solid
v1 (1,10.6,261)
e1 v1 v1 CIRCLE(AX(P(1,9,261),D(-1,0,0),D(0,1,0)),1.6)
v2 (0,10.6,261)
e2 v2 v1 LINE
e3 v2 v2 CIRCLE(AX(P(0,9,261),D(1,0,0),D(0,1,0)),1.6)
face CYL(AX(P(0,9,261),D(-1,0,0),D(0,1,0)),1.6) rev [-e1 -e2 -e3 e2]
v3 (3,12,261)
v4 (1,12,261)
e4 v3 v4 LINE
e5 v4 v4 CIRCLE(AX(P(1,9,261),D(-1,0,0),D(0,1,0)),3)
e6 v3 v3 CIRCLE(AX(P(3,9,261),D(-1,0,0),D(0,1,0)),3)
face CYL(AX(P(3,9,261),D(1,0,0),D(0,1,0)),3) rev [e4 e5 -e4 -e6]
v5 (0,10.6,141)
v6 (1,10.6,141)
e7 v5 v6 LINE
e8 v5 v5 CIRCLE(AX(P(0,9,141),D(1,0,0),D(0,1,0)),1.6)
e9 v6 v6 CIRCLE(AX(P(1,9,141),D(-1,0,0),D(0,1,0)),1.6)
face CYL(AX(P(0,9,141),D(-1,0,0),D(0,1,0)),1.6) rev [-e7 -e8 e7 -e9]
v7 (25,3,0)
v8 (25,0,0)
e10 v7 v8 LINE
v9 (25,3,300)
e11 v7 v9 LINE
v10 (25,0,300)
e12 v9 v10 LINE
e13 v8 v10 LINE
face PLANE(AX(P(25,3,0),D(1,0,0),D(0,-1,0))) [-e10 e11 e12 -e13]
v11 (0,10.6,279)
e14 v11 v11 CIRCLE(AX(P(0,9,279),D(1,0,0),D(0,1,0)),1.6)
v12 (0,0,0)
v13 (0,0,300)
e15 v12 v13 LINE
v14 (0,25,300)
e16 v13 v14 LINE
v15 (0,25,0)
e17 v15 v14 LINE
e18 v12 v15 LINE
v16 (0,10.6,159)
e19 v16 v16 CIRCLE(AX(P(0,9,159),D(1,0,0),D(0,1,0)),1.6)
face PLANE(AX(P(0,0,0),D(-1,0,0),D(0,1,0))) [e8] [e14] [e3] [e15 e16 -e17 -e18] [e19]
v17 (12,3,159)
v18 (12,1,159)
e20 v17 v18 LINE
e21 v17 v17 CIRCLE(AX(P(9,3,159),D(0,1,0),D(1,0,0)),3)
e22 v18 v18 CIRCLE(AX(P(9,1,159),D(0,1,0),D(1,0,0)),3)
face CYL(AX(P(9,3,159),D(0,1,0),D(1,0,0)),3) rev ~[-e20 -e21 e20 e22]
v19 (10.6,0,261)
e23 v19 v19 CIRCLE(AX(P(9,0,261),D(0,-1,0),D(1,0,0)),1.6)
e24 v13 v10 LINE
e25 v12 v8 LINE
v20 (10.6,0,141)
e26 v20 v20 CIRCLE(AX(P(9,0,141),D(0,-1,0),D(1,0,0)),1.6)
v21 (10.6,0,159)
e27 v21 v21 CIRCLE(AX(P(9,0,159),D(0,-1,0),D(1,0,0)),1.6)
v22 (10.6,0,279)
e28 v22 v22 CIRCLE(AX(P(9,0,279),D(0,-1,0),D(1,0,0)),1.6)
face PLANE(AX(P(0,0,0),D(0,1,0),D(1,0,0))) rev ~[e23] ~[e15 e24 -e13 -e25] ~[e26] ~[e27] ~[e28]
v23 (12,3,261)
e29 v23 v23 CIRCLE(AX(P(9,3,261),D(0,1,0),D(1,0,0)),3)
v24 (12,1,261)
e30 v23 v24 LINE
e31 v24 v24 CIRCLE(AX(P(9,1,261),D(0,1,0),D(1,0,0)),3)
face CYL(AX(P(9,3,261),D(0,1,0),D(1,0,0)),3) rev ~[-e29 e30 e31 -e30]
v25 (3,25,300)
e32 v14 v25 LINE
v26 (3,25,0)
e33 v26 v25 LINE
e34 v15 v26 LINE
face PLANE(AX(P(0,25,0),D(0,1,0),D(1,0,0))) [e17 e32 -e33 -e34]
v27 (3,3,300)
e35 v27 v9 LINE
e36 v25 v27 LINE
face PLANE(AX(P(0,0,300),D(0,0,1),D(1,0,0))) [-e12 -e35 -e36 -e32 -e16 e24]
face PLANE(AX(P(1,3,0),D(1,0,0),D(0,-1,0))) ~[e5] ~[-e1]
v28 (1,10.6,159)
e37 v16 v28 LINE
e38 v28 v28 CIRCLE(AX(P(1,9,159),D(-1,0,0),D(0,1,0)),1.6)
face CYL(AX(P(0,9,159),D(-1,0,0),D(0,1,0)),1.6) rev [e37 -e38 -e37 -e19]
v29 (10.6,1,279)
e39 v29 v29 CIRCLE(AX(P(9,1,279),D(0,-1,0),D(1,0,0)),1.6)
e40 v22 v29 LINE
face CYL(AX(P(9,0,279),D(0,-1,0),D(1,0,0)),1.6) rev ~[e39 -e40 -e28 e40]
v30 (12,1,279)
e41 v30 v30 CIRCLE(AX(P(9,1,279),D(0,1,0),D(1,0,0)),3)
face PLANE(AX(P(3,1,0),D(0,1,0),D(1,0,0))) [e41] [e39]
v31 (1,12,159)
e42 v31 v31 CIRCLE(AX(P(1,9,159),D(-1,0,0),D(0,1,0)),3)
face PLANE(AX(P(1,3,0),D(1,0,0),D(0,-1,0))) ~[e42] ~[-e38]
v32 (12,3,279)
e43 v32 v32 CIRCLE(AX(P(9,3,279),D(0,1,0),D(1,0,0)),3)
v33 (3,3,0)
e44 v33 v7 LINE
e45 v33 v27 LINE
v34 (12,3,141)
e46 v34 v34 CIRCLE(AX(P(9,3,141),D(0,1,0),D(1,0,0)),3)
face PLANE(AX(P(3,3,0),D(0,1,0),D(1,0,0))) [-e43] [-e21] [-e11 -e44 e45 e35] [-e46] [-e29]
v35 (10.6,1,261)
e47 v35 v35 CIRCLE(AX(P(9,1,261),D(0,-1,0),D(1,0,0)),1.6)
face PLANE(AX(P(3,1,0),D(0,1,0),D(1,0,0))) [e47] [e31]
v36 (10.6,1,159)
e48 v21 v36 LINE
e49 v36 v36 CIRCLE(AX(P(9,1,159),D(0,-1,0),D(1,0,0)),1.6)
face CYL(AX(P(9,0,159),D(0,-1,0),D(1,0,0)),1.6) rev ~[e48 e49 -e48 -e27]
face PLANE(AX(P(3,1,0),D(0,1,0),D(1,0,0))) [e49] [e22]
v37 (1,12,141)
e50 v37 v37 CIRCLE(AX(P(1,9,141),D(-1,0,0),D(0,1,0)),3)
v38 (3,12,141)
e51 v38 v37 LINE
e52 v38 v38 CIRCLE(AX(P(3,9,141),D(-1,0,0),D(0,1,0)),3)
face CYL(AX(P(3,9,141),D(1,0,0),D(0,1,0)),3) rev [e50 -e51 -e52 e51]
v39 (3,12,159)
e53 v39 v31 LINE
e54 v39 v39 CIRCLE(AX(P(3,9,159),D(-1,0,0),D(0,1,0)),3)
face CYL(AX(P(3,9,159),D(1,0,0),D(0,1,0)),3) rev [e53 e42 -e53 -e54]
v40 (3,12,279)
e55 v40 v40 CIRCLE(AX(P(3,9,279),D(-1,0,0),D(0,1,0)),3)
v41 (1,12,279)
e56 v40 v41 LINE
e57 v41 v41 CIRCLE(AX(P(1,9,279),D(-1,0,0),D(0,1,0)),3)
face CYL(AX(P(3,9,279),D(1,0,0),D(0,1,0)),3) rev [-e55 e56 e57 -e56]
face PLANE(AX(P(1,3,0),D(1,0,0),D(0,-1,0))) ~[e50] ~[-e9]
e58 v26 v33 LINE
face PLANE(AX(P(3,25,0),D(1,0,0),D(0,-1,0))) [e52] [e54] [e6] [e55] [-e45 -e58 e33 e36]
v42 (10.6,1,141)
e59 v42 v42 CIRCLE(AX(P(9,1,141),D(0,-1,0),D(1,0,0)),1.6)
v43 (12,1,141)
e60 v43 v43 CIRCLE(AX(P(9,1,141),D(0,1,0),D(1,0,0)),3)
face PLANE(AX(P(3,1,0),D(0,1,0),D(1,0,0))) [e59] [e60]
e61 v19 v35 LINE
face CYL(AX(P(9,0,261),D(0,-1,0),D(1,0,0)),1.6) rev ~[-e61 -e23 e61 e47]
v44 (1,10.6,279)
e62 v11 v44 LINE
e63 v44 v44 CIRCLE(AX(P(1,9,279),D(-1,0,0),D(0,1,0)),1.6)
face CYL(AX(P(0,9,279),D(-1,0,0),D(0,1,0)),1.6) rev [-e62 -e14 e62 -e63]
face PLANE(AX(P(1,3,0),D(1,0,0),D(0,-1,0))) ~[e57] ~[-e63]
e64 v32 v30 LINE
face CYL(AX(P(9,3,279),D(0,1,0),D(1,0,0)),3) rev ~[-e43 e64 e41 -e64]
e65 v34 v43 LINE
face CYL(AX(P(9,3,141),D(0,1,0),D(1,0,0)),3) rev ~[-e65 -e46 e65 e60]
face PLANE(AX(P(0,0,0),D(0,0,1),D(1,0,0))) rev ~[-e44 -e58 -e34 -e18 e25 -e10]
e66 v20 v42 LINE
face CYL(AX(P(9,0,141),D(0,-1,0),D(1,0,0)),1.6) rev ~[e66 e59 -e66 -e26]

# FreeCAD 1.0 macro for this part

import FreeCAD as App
import Part
import Sketcher

V = App.Vector

doc = App.newDocument("Part")
body = doc.addObject("PartDesign::Body", "Body")

sketch1 = doc.addObject("Sketcher::SketchObject", "Sketch")
body.addObject(sketch1)
sketch1.AttachmentSupport = (doc.XY_Plane, [""])
sketch1.MapMode = "FlatFace"
sketch1.addGeometry([
    Part.LineSegment(V(0, 25, 0), V(0, 0, 0)),
    Part.LineSegment(V(0, 0, 0), V(25, 0, 0)),
    Part.LineSegment(V(25, 0, 0), V(25, 3, 0)),
    Part.LineSegment(V(25, 3, 0), V(3, 3, 0)),
    Part.LineSegment(V(3, 3, 0), V(3, 25, 0)),
    Part.LineSegment(V(3, 25, 0), V(0, 25, 0)),
], False)
sketch1.addConstraint([
    Sketcher.Constraint("Coincident", 0, 2, 1, 1),
    Sketcher.Constraint("Coincident", 1, 2, 2, 1),
    Sketcher.Constraint("Coincident", 2, 2, 3, 1),
    Sketcher.Constraint("Coincident", 3, 2, 4, 1),
    Sketcher.Constraint("Coincident", 4, 2, 5, 1),
    Sketcher.Constraint("Coincident", 5, 2, 0, 1),
    Sketcher.Constraint("Vertical", 0),
    Sketcher.Constraint("Horizontal", 1),
    Sketcher.Constraint("Vertical", 2),
    Sketcher.Constraint("Horizontal", 3),
    Sketcher.Constraint("Vertical", 4),
    Sketcher.Constraint("Horizontal", 5),
    Sketcher.Constraint("Coincident", 0, 2, -1, 1),
    Sketcher.Constraint("Equal", 1, 0),
    Sketcher.Constraint("Equal", 5, 2),
    Sketcher.Constraint("DistanceX", 1, 1, 1, 2, 25.0),
    Sketcher.Constraint("DistanceX", 5, 2, 5, 1, 3.0),
])
pad1 = doc.addObject("PartDesign::Pad", "Pad")
body.addObject(pad1)
pad1.Profile = sketch1
pad1.Length = 300

sketch2 = doc.addObject("Sketcher::SketchObject", "Sketch001")
body.addObject(sketch2)
sketch2.AttachmentSupport = (doc.XZ_Plane, [""])
sketch2.MapMode = "FlatFace"
sketch2.addGeometry([
    Part.Circle(V(9, 159, 0), V(0, 0, 1), 1.6),
    Part.Circle(V(9, 141, 0), V(0, 0, 1), 1.6),
    Part.Circle(V(9, 279, 0), V(0, 0, 1), 1.6),
    Part.Circle(V(9, 261, 0), V(0, 0, 1), 1.6),
], False)
sketch2.addConstraint([
    Sketcher.Constraint("Equal", 0, 1),
    Sketcher.Constraint("Equal", 1, 2),
    Sketcher.Constraint("Equal", 2, 3),
    Sketcher.Constraint("Vertical", 0, 3, 1, 3),
    Sketcher.Constraint("Vertical", 1, 3, 2, 3),
    Sketcher.Constraint("Vertical", 2, 3, 3, 3),
    Sketcher.Constraint("Diameter", 0, 3.2),
    Sketcher.Constraint("DistanceX", -1, 1, 0, 3, 9.0),
    Sketcher.Constraint("DistanceY", 1, 3, 0, 3, 18.0),
    Sketcher.Constraint("DistanceY", 3, 3, 2, 3, 18.0),
    Sketcher.Constraint("DistanceY", -1, 1, 0, 3, 159.0),
    Sketcher.Constraint("DistanceY", -1, 1, 2, 3, 279.0),
])
pocket1 = doc.addObject("PartDesign::Pocket", "Pocket")
body.addObject(pocket1)
pocket1.Profile = sketch2
pocket1.Type = "ThroughAll"
doc.recompute()

datumplane = doc.addObject("PartDesign::Plane", "DatumPlane")
body.addObject(datumplane)
datumplane.Placement = App.Placement(V(0, 0, 0), App.Rotation(V(0.707106781, 0.707106781, 0), V(0, 0, -1), V(-0.707106781, 0.707106781, 0), "ZXY"))
mirrored = doc.addObject("PartDesign::Mirrored", "Mirrored")
body.addObject(mirrored)
mirrored.Originals = [pocket1]
mirrored.MirrorPlane = (datumplane, [""])
body.Tip = mirrored

sketch3 = doc.addObject("Sketcher::SketchObject", "Sketch002")
body.addObject(sketch3)
sketch3.AttachmentSupport = (doc.XZ_Plane, [""])
sketch3.MapMode = "FlatFace"
sketch3.AttachmentOffset = App.Placement(V(0, 0, -3), App.Rotation())
sketch3.addGeometry([
    Part.Circle(V(9, 141, 0), V(0, 0, 1), 3),
    Part.Circle(V(9, 159, 0), V(0, 0, 1), 3),
    Part.Circle(V(9, 261, 0), V(0, 0, 1), 3),
    Part.Circle(V(9, 279, 0), V(0, 0, 1), 3),
], False)
sketch3.addConstraint([
    Sketcher.Constraint("Equal", 0, 1),
    Sketcher.Constraint("Equal", 1, 2),
    Sketcher.Constraint("Equal", 2, 3),
    Sketcher.Constraint("Vertical", 0, 3, 1, 3),
    Sketcher.Constraint("Vertical", 1, 3, 2, 3),
    Sketcher.Constraint("Vertical", 2, 3, 3, 3),
    Sketcher.Constraint("Diameter", 0, 6.0),
    Sketcher.Constraint("DistanceX", -1, 1, 0, 3, 9.0),
    Sketcher.Constraint("DistanceY", -1, 1, 0, 3, 141.0),
    Sketcher.Constraint("DistanceY", -1, 1, 1, 3, 159.0),
    Sketcher.Constraint("DistanceY", -1, 1, 2, 3, 261.0),
    Sketcher.Constraint("DistanceY", -1, 1, 3, 3, 279.0),
])
pocket2 = doc.addObject("PartDesign::Pocket", "Pocket001")
body.addObject(pocket2)
pocket2.Profile = sketch3
pocket2.Length = 2
pocket2.Reversed = True
doc.recompute()

datumplane2 = doc.addObject("PartDesign::Plane", "DatumPlane001")
body.addObject(datumplane2)
datumplane2.Placement = App.Placement(V(0, 0, 0), App.Rotation(V(0.707106781, 0.707106781, 0), V(0, 0, -1), V(-0.707106781, 0.707106781, 0), "ZXY"))
mirrored2 = doc.addObject("PartDesign::Mirrored", "Mirrored001")
body.addObject(mirrored2)
mirrored2.Originals = [pocket2]
mirrored2.MirrorPlane = (datumplane2, [""])
body.Tip = mirrored2

doc.recompute()
